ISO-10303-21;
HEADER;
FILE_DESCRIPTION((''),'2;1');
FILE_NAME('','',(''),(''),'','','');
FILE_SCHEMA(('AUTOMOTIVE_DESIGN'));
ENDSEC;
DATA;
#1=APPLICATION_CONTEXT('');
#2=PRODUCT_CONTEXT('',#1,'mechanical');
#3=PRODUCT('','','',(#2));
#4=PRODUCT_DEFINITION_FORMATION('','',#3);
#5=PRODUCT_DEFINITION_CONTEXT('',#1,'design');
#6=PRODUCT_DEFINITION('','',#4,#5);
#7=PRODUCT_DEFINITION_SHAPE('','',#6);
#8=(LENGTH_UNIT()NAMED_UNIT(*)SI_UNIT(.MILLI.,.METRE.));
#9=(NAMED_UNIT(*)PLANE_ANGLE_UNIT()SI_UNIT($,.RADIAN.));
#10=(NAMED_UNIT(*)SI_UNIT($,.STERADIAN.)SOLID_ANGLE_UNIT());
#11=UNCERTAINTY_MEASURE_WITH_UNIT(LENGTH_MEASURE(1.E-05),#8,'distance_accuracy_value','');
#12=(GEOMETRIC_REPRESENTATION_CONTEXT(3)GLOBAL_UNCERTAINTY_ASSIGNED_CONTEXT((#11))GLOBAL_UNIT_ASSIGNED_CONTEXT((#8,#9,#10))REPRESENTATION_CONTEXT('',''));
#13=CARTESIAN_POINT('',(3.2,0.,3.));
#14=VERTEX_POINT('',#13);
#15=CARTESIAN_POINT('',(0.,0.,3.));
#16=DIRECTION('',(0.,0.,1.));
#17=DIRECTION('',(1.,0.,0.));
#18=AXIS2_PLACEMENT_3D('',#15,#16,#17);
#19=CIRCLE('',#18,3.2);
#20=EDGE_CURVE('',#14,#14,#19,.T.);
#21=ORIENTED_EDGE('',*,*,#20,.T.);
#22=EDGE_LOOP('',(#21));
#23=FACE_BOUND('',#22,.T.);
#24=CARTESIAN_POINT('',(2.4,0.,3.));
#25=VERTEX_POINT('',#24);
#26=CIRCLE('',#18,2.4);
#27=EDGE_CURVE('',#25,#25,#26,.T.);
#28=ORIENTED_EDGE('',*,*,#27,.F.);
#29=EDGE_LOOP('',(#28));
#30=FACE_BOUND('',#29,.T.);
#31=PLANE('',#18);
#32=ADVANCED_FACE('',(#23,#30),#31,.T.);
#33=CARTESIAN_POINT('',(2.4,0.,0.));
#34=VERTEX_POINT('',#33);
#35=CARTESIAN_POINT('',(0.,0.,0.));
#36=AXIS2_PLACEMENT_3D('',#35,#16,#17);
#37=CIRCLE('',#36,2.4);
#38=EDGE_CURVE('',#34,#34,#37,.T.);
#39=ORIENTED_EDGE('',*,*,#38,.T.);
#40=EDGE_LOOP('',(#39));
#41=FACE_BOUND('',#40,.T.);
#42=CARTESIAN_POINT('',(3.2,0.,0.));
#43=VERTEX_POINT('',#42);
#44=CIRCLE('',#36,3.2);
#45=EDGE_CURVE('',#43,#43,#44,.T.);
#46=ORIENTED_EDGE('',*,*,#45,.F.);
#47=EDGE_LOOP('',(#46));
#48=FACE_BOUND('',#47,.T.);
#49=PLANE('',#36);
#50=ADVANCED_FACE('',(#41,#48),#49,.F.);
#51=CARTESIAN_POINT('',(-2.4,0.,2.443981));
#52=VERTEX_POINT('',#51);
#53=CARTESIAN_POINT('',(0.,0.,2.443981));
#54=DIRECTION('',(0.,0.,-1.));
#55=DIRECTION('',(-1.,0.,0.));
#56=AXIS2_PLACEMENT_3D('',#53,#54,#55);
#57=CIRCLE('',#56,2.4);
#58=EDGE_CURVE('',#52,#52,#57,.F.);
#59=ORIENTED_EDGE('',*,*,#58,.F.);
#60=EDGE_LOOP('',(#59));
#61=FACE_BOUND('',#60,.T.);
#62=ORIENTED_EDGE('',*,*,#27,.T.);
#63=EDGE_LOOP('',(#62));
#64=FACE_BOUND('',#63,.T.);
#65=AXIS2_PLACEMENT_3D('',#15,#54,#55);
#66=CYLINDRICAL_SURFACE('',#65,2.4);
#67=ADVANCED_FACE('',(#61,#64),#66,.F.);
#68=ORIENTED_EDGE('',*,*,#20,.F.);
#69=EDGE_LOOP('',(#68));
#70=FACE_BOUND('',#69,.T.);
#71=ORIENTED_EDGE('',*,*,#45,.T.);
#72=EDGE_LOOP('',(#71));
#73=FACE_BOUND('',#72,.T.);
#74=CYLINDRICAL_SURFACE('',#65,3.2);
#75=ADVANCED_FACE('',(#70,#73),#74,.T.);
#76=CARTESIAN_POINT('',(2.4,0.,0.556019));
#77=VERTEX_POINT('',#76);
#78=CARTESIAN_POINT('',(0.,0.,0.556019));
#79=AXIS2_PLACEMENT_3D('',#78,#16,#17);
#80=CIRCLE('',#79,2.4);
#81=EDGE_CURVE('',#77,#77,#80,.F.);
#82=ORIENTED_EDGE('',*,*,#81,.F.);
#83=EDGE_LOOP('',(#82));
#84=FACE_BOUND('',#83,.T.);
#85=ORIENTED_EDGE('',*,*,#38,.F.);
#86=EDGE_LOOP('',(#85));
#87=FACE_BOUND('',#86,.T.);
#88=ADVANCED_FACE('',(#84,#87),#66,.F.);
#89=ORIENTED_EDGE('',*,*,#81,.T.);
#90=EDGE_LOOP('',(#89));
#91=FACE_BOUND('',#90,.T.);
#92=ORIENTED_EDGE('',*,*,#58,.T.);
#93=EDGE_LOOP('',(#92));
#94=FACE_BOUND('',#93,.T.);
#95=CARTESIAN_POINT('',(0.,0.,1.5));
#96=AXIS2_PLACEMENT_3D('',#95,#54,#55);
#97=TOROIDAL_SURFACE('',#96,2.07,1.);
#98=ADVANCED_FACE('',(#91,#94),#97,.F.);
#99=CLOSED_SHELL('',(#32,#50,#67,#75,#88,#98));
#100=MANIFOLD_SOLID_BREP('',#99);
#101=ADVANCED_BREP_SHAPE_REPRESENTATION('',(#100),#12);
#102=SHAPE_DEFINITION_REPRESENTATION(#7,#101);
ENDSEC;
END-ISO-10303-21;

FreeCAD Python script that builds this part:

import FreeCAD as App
import Part
import Sketcher
from FreeCAD import Vector

doc = App.newDocument("Part")
body = doc.addObject("PartDesign::Body", "Body")

# Sketch on XY plane
sketch1 = body.newObject("Sketcher::SketchObject", "Sketch")
sketch1.AttachmentSupport = (doc.getObject("XY_Plane"), [""])
sketch1.MapMode = "FlatFace"
sketch1.addGeometry([
    Part.Circle(Vector(0, 0, 0), Vector(0, 0, 1), 3.2),
    Part.Circle(Vector(0, 0, 0), Vector(0, 0, 1), 2.4),
], False)
sketch1.addConstraint([
    Sketcher.Constraint("Coincident", 0, 3, -1, 1),
    Sketcher.Constraint("Coincident", 1, 3, -1, 1),
    Sketcher.Constraint("Diameter", 0, 6.4),
    Sketcher.Constraint("Diameter", 1, 4.8),
])
pad1 = body.newObject("PartDesign::Pad", "Pad")
pad1.Profile = sketch1
pad1.Length = 3

# Sketch on YZ plane
sketch2 = body.newObject("Sketcher::SketchObject", "Sketch001")
sketch2.AttachmentSupport = (doc.getObject("YZ_Plane"), [""])
sketch2.MapMode = "FlatFace"
sketch2.addGeometry(Part.Circle(Vector(2.1, 1.5, 0), Vector(0, 0, 1), 1), False)
sketch2.addConstraint([
    Sketcher.Constraint("Diameter", 0, 2.0),
    Sketcher.Constraint("DistanceY", -1, 1, 0, 3, 1.5),
    Sketcher.Constraint("DistanceX", -1, 1, 0, 3, 2.07),
])
groove = body.newObject("PartDesign::Groove", "Groove")
groove.Profile = sketch2
groove.ReferenceAxis = (sketch2, ["V_Axis"])
groove.Angle = 360

doc.recompute()
